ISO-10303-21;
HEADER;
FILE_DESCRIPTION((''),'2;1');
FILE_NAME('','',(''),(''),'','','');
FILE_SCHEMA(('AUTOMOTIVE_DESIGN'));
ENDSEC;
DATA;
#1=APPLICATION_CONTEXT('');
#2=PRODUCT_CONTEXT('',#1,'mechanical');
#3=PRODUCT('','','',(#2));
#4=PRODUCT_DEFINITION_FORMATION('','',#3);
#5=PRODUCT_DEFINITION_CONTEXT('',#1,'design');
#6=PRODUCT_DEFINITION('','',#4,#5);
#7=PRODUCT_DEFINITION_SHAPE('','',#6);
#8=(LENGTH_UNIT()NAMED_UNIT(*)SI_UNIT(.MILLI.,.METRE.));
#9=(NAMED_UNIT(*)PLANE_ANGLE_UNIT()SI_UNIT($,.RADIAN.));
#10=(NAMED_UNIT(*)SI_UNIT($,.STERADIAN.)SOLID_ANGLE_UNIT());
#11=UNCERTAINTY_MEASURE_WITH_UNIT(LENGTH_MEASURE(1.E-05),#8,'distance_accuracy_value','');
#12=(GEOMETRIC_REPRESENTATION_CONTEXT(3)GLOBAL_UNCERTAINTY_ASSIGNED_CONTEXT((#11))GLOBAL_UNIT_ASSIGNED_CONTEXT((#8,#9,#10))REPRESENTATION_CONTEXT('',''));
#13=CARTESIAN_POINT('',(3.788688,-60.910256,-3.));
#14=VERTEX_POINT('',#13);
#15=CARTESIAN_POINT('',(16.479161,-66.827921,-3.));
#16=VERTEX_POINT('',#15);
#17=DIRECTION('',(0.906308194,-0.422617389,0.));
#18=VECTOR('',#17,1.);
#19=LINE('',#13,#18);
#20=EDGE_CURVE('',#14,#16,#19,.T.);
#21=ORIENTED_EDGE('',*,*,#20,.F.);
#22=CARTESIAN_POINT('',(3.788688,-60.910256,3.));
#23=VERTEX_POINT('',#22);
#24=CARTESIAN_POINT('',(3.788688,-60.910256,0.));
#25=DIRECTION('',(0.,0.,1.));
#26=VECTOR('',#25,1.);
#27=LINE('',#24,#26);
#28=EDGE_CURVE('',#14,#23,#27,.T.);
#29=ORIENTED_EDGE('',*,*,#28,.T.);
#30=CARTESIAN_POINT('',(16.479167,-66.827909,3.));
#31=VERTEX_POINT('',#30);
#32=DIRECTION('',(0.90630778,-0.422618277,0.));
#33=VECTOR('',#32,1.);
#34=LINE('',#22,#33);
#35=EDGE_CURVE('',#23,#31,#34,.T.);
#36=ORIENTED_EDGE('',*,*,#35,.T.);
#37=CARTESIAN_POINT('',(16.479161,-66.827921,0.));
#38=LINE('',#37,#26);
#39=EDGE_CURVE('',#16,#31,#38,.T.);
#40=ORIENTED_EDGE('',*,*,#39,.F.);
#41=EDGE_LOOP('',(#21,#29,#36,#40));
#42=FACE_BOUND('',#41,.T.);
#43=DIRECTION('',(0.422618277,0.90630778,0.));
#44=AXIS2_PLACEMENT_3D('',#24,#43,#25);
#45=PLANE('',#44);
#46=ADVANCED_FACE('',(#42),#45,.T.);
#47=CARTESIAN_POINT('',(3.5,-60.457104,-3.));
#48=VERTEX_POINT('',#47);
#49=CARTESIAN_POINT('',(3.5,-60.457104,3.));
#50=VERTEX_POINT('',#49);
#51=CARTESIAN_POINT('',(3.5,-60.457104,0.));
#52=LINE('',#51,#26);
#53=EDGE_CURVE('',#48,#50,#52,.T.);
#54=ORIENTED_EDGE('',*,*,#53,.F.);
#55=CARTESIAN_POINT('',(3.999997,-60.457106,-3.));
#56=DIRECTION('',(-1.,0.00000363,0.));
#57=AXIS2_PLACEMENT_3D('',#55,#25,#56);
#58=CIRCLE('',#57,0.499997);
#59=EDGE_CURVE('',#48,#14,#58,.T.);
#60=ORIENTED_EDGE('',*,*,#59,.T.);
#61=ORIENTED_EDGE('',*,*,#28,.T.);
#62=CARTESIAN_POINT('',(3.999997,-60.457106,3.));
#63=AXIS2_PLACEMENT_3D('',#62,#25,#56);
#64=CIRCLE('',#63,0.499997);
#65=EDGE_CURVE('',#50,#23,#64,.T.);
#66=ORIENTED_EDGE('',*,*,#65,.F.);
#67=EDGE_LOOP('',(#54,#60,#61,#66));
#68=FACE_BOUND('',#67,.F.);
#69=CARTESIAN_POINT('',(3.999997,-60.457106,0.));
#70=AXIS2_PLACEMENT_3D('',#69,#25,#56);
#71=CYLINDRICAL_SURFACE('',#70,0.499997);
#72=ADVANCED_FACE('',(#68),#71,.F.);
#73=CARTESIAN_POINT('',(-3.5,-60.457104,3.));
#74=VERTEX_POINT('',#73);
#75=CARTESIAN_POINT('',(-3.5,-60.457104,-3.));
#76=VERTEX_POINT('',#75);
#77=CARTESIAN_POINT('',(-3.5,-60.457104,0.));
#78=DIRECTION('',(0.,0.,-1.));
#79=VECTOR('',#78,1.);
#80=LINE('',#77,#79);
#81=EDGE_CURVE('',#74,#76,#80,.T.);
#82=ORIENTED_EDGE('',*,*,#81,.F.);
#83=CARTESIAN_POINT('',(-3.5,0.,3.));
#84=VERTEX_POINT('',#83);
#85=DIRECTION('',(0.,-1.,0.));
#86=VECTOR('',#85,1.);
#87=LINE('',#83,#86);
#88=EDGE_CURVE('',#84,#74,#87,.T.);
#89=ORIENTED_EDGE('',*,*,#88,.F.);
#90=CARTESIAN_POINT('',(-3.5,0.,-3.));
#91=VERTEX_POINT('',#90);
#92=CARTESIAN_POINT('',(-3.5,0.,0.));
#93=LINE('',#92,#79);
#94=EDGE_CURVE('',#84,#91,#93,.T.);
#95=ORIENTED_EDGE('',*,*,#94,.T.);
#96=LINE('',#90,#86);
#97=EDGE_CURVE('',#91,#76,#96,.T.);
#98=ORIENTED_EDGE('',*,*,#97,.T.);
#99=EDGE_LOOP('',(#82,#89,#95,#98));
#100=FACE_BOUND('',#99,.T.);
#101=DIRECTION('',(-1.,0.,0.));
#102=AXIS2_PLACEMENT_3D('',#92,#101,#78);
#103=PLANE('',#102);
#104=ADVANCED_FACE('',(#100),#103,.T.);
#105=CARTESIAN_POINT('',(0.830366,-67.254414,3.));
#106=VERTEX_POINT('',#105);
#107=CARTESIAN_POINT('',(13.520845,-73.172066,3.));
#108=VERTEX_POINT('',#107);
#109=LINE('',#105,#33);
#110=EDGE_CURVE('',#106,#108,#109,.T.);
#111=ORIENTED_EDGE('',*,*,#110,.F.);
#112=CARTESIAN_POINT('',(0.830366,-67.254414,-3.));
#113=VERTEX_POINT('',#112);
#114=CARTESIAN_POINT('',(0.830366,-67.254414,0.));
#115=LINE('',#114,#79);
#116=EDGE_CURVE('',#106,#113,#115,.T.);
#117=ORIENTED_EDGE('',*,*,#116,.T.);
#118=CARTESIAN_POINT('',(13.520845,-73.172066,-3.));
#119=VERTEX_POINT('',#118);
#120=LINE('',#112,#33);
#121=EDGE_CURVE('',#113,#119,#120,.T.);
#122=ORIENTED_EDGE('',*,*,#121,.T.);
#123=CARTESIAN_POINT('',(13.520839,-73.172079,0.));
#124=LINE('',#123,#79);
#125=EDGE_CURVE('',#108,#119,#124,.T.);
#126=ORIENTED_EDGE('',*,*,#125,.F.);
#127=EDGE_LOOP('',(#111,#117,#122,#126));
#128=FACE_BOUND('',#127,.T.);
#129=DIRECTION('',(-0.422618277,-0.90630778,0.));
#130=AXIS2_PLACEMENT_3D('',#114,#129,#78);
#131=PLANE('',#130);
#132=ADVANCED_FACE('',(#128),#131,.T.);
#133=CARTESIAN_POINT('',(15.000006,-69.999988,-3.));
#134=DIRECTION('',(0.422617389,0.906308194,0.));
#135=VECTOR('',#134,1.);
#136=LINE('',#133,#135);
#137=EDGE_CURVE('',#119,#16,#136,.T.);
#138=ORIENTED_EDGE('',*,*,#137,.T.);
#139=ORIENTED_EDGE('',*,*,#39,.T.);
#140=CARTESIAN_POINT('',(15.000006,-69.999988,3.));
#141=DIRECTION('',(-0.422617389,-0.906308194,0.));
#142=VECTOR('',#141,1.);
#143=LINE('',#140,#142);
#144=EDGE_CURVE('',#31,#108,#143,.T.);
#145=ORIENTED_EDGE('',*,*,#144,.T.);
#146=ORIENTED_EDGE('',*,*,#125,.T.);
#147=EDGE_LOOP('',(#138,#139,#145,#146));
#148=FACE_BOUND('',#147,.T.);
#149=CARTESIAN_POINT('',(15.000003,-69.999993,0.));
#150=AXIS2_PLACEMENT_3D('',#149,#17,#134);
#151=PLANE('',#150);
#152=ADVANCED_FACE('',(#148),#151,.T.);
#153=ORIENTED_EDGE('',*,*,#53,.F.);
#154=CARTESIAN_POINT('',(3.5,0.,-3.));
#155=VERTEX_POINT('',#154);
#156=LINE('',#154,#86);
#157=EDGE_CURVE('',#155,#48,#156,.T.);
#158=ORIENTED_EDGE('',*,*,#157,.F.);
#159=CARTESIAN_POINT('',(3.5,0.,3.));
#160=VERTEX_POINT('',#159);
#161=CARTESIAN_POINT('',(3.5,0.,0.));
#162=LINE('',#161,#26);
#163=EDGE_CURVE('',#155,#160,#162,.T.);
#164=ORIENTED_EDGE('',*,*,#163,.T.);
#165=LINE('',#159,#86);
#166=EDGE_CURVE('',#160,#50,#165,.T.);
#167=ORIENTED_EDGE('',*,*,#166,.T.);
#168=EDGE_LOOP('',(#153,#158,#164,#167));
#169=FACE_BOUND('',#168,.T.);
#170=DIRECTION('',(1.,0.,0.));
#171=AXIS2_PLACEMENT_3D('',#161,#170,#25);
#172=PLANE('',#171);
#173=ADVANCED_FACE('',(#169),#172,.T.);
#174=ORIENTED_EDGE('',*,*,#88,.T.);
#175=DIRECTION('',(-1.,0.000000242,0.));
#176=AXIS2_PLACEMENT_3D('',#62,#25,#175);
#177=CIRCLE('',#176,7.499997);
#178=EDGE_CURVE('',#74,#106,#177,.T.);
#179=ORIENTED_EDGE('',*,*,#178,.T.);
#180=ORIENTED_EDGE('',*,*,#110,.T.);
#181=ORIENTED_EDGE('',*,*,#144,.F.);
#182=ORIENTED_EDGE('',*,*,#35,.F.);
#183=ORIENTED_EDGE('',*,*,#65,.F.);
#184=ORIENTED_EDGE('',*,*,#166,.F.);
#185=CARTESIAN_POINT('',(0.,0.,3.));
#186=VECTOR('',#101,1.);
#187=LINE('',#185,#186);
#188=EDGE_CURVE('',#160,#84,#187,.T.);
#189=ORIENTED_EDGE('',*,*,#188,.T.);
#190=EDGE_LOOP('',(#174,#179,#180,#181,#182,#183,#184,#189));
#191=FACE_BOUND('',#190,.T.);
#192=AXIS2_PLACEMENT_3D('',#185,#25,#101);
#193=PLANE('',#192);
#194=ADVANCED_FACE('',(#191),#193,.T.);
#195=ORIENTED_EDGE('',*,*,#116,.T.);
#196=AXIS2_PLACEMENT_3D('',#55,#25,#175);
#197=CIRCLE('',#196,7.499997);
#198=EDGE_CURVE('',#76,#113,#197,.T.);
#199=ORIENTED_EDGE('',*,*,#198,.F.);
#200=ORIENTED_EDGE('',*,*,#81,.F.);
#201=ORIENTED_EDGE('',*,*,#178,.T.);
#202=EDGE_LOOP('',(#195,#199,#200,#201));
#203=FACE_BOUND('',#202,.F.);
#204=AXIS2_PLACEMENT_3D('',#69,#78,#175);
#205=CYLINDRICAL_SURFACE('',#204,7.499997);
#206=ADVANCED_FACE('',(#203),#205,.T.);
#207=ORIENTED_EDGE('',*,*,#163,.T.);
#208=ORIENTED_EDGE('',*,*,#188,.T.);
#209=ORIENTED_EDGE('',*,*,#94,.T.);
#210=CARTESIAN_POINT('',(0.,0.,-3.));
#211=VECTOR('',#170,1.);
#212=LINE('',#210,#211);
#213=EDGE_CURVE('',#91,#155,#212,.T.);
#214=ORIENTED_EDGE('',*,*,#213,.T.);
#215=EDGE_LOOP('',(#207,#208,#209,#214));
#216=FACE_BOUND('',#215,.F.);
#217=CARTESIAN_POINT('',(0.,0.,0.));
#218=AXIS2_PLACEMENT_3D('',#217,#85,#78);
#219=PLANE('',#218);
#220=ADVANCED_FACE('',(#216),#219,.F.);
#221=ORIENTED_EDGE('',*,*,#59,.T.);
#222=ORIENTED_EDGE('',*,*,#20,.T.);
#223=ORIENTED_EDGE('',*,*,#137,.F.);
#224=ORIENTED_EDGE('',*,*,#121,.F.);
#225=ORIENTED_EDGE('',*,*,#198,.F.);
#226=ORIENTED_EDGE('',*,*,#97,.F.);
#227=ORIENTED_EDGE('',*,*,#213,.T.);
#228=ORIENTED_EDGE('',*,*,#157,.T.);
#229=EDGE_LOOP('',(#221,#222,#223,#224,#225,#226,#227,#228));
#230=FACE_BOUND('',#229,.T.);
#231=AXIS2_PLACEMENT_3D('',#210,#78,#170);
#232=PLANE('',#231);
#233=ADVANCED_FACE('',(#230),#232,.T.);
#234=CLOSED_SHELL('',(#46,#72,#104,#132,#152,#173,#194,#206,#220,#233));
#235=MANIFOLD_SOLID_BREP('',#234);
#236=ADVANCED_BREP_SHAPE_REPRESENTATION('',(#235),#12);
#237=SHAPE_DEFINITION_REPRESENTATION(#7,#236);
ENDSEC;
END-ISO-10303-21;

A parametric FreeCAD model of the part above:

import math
import FreeCAD as App
import Part
import Sketcher
Q = App.Units.Quantity

doc = App.newDocument("Part")
body = doc.addObject("PartDesign::Body", "Body")

# Sketch on XZ plane
sketch1 = body.newObject("Sketcher::SketchObject", "Sketch")
sketch1.AttachmentSupport = (doc.getObject("XZ_Plane"), [""])
sketch1.MapMode = "FlatFace"
sketch1.addGeometry([
    Part.LineSegment(App.Vector(-4, 3, 0), App.Vector(-4, -3, 0)),
    Part.LineSegment(App.Vector(-4, -3, 0), App.Vector(4, -3, 0)),
    Part.LineSegment(App.Vector(4, -3, 0), App.Vector(4, 3, 0)),
    Part.LineSegment(App.Vector(4, 3, 0), App.Vector(-4, 3, 0)),
], False)
sketch1.addConstraint([
    Sketcher.Constraint("Coincident", 0, 2, 1, 1),
    Sketcher.Constraint("Coincident", 1, 2, 2, 1),
    Sketcher.Constraint("Coincident", 2, 2, 3, 1),
    Sketcher.Constraint("Coincident", 3, 2, 0, 1),
    Sketcher.Constraint("Vertical", 0),
    Sketcher.Constraint("Horizontal", 1),
    Sketcher.Constraint("Vertical", 2),
    Sketcher.Constraint("Horizontal", 3),
    Sketcher.Constraint("Symmetric", 0, 2, 2, 2, -1, 1),
    Sketcher.Constraint("DistanceX", 1, 1, 1, 2, Q("7 mm")),
    Sketcher.Constraint("DistanceY", 0, 2, 0, 1, Q("6 mm")),
])

# Sketch on XY plane
sketch2 = body.newObject("Sketcher::SketchObject", "Sketch001")
sketch2.AttachmentSupport = (doc.getObject("XY_Plane"), [""])
sketch2.MapMode = "FlatFace"
sketch2.addGeometry([
    Part.LineSegment(App.Vector(0, 0, 0), App.Vector(0, -60.5, 0)),
    Part.ArcOfCircle(Part.Circle(App.Vector(4, -60.5, 0), App.Vector(0, 0, 1), 4), math.radians(180), math.radians(245)),
    Part.LineSegment(App.Vector(2.3, -64.1, 0), App.Vector(15, -70, 0)),
], False)
sketch2.addConstraint([
    Sketcher.Constraint("Tangent", 0, 2, 1, 1),
    Sketcher.Constraint("Tangent", 1, 2, 2, 1),
    Sketcher.Constraint("Vertical", 0),
    Sketcher.Constraint("Coincident", 0, 1, -1, 1),
    Sketcher.Constraint("Angle", 2, Q("-25.000001 deg")),
    Sketcher.Constraint("DistanceX", -1, 1, 2, 2, Q("15 mm")),
    Sketcher.Constraint("DistanceY", 2, 2, -1, 1, Q("70 mm")),
    Sketcher.Constraint("Radius", 1, Q("3.999997 mm")),
])
doc.recompute()

additivepipe = body.newObject("PartDesign::AdditivePipe", "AdditivePipe")
additivepipe.Profile = sketch1
additivepipe.Spine = (sketch2, ["Edge1", "Edge2", "Edge3"])

doc.recompute()
